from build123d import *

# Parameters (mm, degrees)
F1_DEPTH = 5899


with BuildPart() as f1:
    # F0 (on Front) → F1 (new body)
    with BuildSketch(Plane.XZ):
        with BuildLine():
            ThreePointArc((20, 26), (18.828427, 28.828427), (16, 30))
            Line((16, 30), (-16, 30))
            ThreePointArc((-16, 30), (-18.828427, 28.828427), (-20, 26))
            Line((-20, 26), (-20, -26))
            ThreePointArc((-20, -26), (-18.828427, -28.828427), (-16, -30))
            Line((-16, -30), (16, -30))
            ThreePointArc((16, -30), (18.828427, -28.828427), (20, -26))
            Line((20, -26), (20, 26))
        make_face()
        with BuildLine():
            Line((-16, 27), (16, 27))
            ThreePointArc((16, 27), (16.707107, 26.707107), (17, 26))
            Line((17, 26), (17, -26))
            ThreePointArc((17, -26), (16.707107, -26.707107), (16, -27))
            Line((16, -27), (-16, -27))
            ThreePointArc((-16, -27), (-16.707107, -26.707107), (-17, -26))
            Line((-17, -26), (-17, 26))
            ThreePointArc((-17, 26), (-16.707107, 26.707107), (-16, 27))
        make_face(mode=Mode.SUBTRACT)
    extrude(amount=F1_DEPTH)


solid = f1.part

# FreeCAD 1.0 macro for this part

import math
import FreeCAD as App
import Part
import Sketcher
from FreeCAD import Vector

doc = App.newDocument("Part")
body = doc.addObject("PartDesign::Body", "Body")

# Sketch on XZ plane
sketch1 = body.newObject("Sketcher::SketchObject", "Sketch")
sketch1.AttachmentSupport = (doc.getObject("XZ_Plane"), [""])
sketch1.MapMode = "FlatFace"
sketch1.addGeometry([
    Part.ArcOfCircle(Part.Circle(Vector(16, 26, 0), Vector(0, 0, 1), 4), math.radians(0.000006), math.radians(89.999994)),  # 0
    Part.LineSegment(Vector(16, 30, 0), Vector(-16, 30, 0)),  # 1
    Part.ArcOfCircle(Part.Circle(Vector(-16, 26, 0), Vector(0, 0, 1), 4), math.radians(90.000006), math.radians(179.999994)),  # 2
    Part.LineSegment(Vector(-20, 26, 0), Vector(-20, -26, 0)),  # 3
    Part.ArcOfCircle(Part.Circle(Vector(-16, -26, 0), Vector(0, 0, 1), 4), math.radians(-179.999994), math.radians(-90.000006)),  # 4
    Part.LineSegment(Vector(-16, -30, 0), Vector(16, -30, 0)),  # 5
    Part.ArcOfCircle(Part.Circle(Vector(16, -26, 0), Vector(0, 0, 1), 4), math.radians(-89.999994), math.radians(-0.000006)),  # 6
    Part.LineSegment(Vector(20, -26, 0), Vector(20, 26, 0)),  # 7
    Part.ArcOfCircle(Part.Circle(Vector(-16.000001, 26.000001, 0), Vector(0, 0, 1), 0.999999), math.radians(89.999957), math.radians(180.000043)),  # 8
    Part.LineSegment(Vector(-16, 27, 0), Vector(16, 27, 0)),  # 9
    Part.ArcOfCircle(Part.Circle(Vector(16.000001, 26.000001, 0), Vector(0, 0, 1), 0.999999), math.radians(-0.000043), math.radians(90.000043)),  # 10
    Part.LineSegment(Vector(17, 26, 0), Vector(17, -26, 0)),  # 11
    Part.ArcOfCircle(Part.Circle(Vector(16.000001, -26.000001, 0), Vector(0, 0, 1), 0.999999), math.radians(-90.000043), math.radians(0.000043)),  # 12
    Part.LineSegment(Vector(16, -27, 0), Vector(-16, -27, 0)),  # 13
    Part.ArcOfCircle(Part.Circle(Vector(-16.000001, -26.000001, 0), Vector(0, 0, 1), 0.999999), math.radians(179.999957), math.radians(270.000043)),  # 14
    Part.LineSegment(Vector(-17, -26, 0), Vector(-17, 26, 0)),  # 15
], False)
sketch1.addConstraint([
    Sketcher.Constraint("Tangent", 0, 2, 1, 1),
    Sketcher.Constraint("Tangent", 1, 2, 2, 1),
    Sketcher.Constraint("Tangent", 2, 2, 3, 1),
    Sketcher.Constraint("Tangent", 3, 2, 4, 1),
    Sketcher.Constraint("Tangent", 4, 2, 5, 1),
    Sketcher.Constraint("Tangent", 5, 2, 6, 1),
    Sketcher.Constraint("Tangent", 6, 2, 7, 1),
    Sketcher.Constraint("Tangent", 7, 2, 0, 1),
    Sketcher.Constraint("Tangent", 8, 1, 9, 1),
    Sketcher.Constraint("Tangent", 9, 2, 10, 2),
    Sketcher.Constraint("Tangent", 10, 1, 11, 1),
    Sketcher.Constraint("Tangent", 11, 2, 12, 2),
    Sketcher.Constraint("Tangent", 12, 1, 13, 1),
    Sketcher.Constraint("Tangent", 13, 2, 14, 2),
    Sketcher.Constraint("Tangent", 14, 1, 15, 1),
    Sketcher.Constraint("Tangent", 15, 2, 8, 2),
    Sketcher.Constraint("Horizontal", 1),
    Sketcher.Constraint("Vertical", 3),
    Sketcher.Constraint("Horizontal", 5),
    Sketcher.Constraint("Vertical", 7),
    Sketcher.Constraint("Horizontal", 9),
    Sketcher.Constraint("Vertical", 11),
    Sketcher.Constraint("Horizontal", 13),
    Sketcher.Constraint("Vertical", 15),
    Sketcher.Constraint("Coincident", 8, 3, 2, 3),
    Sketcher.Constraint("Coincident", 10, 3, 0, 3),
    Sketcher.Constraint("Coincident", 12, 3, 6, 3),
    Sketcher.Constraint("Equal", 0, 2),
    Sketcher.Constraint("Equal", 2, 4),
    Sketcher.Constraint("Equal", 4, 6),
    Sketcher.Constraint("Equal", 12, 14),
    Sketcher.Constraint("Symmetric", 0, 3, 4, 3, -1, 1),
    Sketcher.Constraint("Radius", 0, 4.0),
    Sketcher.Constraint("Radius", 8, 0.999999),
    Sketcher.Constraint("DistanceX", 1, 2, 1, 1, 32.0),
    Sketcher.Constraint("DistanceY", 3, 2, 3, 1, 52.0),
])
pad1 = body.newObject("PartDesign::Pad", "Pad")
pad1.Profile = sketch1
pad1.Length = 5899

doc.recompute()
